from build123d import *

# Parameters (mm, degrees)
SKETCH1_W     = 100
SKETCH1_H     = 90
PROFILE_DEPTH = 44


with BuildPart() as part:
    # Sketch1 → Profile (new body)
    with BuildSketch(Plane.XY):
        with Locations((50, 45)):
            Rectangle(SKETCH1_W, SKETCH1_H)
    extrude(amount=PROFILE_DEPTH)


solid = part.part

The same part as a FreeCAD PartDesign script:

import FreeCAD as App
import Part
import Sketcher

V = App.Vector


def add_polygon(sketch, points):
    """Adds a closed chain of lines whose ends are joined by coincident constraints."""
    first, n = sketch.GeometryCount, len(points)
    for a, b in zip(points, points[1:] + points[:1]):
        sketch.addGeometry(Part.LineSegment(App.Vector(*a, 0), App.Vector(*b, 0)), False)
    for i in range(n):
        sketch.addConstraint(Sketcher.Constraint("Coincident", first + i, 2, first + (i + 1) % n, 1))

doc = App.newDocument("Part")
body = doc.addObject("PartDesign::Body", "Body")

# Sketch on XY plane
sketch1 = doc.addObject("Sketcher::SketchObject", "Sketch")
body.addObject(sketch1)
sketch1.AttachmentSupport = (doc.XY_Plane, [""])
sketch1.MapMode = "FlatFace"
add_polygon(sketch1, [(0, 90), (0, 0), (100, 0), (100, 90)])  # lines 0-3
sketch1.addConstraint([
    Sketcher.Constraint("Vertical", 0),
    Sketcher.Constraint("Horizontal", 1),
    Sketcher.Constraint("Vertical", 2),
    Sketcher.Constraint("Horizontal", 3),
    Sketcher.Constraint("Coincident", 0, 2, -1, 1),
    Sketcher.Constraint("DistanceX", 1, 1, 1, 2, 100.0),
    Sketcher.Constraint("DistanceY", 0, 2, 0, 1, 90.0),
])
pad1 = doc.addObject("PartDesign::Pad", "Pad")
body.addObject(pad1)
pad1.Profile = sketch1
pad1.Length = 44

doc.recompute()
